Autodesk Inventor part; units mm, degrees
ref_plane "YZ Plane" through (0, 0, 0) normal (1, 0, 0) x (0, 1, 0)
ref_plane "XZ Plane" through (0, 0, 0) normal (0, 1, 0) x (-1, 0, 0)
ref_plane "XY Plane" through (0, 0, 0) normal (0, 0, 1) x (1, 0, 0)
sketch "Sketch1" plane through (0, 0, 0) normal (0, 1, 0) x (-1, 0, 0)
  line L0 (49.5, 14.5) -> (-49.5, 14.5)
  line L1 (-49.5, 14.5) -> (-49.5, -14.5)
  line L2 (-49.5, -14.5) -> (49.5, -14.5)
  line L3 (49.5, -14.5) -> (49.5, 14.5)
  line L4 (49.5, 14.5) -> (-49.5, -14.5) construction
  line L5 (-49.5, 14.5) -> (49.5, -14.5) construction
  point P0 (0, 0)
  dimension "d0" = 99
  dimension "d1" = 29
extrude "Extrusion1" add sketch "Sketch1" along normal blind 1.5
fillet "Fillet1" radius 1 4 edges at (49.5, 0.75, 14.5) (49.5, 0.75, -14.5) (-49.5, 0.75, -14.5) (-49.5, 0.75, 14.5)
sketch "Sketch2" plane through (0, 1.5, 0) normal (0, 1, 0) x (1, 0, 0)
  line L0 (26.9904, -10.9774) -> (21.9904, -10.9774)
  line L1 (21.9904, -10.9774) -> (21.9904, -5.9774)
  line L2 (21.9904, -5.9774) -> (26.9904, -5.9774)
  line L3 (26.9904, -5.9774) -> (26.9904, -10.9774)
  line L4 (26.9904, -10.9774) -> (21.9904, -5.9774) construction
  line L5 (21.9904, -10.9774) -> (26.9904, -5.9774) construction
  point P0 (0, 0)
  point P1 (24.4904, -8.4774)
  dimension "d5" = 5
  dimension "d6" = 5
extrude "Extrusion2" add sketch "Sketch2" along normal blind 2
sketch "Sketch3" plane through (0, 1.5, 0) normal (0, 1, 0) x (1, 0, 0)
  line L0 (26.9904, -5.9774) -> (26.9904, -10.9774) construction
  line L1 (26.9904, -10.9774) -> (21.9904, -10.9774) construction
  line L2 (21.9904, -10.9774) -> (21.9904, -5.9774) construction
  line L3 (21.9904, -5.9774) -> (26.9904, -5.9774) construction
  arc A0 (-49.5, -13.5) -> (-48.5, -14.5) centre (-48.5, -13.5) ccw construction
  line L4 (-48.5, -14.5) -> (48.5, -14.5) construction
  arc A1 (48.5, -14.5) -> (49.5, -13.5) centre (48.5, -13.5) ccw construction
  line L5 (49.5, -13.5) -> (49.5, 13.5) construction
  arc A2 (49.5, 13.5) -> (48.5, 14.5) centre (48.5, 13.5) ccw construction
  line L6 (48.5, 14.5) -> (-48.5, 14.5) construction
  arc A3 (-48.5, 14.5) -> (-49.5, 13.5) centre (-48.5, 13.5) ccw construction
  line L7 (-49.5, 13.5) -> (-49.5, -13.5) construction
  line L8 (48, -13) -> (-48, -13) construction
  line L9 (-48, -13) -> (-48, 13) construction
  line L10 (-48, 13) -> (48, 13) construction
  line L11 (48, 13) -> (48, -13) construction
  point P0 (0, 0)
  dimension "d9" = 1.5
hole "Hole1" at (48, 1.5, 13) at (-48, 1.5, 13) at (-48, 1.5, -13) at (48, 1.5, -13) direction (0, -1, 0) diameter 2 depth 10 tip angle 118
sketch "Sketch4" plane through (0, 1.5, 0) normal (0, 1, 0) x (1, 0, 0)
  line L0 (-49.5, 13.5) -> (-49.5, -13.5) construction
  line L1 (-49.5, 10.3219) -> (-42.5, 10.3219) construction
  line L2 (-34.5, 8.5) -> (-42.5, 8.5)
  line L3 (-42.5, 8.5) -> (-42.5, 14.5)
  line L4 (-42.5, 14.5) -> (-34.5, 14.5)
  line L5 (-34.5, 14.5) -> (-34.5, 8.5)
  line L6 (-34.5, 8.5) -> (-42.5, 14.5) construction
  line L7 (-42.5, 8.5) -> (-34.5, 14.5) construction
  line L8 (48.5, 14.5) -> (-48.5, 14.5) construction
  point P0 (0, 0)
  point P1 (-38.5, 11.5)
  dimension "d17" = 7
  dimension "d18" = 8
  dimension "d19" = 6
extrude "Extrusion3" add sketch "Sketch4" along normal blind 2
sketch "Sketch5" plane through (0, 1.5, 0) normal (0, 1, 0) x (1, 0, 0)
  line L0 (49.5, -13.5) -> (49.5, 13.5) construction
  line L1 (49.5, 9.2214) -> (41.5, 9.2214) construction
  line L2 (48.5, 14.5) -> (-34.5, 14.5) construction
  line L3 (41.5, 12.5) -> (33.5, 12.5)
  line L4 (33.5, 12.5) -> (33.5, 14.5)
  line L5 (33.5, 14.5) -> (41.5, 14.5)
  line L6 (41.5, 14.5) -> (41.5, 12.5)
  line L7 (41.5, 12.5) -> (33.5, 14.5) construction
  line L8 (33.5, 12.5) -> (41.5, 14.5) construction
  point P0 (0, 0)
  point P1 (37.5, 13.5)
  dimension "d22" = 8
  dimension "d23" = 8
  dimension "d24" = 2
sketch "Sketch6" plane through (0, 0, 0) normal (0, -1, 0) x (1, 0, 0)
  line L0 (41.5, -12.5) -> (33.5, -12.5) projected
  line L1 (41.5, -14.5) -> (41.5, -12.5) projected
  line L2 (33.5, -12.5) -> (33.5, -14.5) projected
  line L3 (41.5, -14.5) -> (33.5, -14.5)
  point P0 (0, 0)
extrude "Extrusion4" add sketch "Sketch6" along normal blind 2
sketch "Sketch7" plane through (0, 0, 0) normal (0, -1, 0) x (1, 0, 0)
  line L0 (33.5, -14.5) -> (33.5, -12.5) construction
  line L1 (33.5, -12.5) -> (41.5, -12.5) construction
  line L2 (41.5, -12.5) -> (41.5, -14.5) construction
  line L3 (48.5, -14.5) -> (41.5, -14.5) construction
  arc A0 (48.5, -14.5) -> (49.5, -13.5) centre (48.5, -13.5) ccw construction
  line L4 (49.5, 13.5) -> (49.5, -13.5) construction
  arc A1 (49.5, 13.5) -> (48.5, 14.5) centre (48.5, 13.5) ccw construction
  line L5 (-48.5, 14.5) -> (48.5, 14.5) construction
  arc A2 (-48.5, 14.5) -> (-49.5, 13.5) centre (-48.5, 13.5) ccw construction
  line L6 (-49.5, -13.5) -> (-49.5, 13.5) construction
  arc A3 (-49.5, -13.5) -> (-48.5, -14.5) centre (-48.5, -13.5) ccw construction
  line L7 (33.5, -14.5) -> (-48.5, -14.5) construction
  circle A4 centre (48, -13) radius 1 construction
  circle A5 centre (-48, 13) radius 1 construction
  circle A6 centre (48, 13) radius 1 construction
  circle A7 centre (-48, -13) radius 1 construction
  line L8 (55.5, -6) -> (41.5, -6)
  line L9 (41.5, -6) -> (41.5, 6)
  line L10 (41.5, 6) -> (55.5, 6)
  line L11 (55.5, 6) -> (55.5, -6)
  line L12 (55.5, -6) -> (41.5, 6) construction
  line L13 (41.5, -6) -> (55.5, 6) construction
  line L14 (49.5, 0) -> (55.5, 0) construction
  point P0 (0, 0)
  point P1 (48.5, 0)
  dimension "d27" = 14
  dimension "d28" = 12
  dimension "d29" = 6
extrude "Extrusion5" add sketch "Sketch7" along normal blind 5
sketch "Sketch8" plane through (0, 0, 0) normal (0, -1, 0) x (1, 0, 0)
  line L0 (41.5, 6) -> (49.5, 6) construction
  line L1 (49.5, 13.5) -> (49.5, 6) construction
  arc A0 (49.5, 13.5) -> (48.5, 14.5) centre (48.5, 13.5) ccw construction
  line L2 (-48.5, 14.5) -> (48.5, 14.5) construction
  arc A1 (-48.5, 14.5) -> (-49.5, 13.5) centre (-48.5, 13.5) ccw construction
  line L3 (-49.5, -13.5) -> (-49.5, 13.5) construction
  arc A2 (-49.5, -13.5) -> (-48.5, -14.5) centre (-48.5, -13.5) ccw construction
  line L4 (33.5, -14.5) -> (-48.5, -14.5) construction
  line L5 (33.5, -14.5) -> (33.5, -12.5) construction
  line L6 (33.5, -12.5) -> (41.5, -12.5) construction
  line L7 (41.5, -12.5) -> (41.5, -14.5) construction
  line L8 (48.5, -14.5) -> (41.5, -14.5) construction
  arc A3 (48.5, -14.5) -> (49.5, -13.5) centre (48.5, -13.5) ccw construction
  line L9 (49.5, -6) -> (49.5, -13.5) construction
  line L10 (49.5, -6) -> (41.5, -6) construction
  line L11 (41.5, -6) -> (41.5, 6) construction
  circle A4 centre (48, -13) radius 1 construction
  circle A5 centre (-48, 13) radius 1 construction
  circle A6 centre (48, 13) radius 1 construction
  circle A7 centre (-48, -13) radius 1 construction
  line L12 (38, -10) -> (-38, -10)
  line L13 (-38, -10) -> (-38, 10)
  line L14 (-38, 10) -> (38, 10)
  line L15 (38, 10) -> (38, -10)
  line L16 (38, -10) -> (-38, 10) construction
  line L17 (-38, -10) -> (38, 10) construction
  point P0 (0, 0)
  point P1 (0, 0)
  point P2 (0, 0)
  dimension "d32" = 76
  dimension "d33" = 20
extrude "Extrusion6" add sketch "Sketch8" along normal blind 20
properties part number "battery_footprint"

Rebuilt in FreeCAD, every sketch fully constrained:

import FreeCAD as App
import Part
import Sketcher

V = App.Vector
Q = App.Units.Quantity


def edges_at(feature, points):
    """Names of the edges that pass closest to the given points."""
    edges = feature.Shape.Edges
    near = lambda p: min(range(len(edges)), key=lambda i: edges[i].distToShape(Part.Vertex(*p))[0])
    return sorted({f"Edge{near(p) + 1}" for p in points})

doc = App.newDocument("Part")
body = doc.addObject("PartDesign::Body", "Body")

# Sketch on XZ plane
sketch1 = body.newObject("Sketcher::SketchObject", "Sketch")
sketch1.AttachmentSupport = (doc.getObject("XZ_Plane"), [""])
sketch1.MapMode = "FlatFace"
sketch1.addGeometry([
    Part.LineSegment(V(-49.5, -14.5, 0), V(-49.5, 14.5, 0)),
    Part.LineSegment(V(-49.5, 14.5, 0), V(49.5, 14.5, 0)),
    Part.LineSegment(V(49.5, 14.5, 0), V(49.5, -14.5, 0)),
    Part.LineSegment(V(49.5, -14.5, 0), V(-49.5, -14.5, 0)),
], False)
sketch1.addConstraint([
    Sketcher.Constraint("Coincident", 0, 2, 1, 1),
    Sketcher.Constraint("Coincident", 1, 2, 2, 1),
    Sketcher.Constraint("Coincident", 2, 2, 3, 1),
    Sketcher.Constraint("Coincident", 3, 2, 0, 1),
    Sketcher.Constraint("Vertical", 0),
    Sketcher.Constraint("Horizontal", 1),
    Sketcher.Constraint("Vertical", 2),
    Sketcher.Constraint("Horizontal", 3),
    Sketcher.Constraint("Symmetric", 0, 2, 2, 2, -1, 1),
    Sketcher.Constraint("DistanceX", 1, 1, 1, 2, Q("99 mm")),
    Sketcher.Constraint("DistanceY", 0, 1, 0, 2, Q("29 mm")),
])
pad1 = body.newObject("PartDesign::Pad", "Pad")
pad1.Profile = sketch1
pad1.Length = 1.5
pad1.Reversed = True
doc.recompute()

fillet = body.newObject("PartDesign::Fillet", "Fillet")
fillet.Base = (pad1, edges_at(pad1, [
    (49.5, 0.75, 14.5),
    (49.5, 0.75, -14.5),
    (-49.5, 0.75, -14.5),
    (-49.5, 0.75, 14.5),
]))
fillet.Radius = 1

# Sketch on XZ plane
sketch2 = body.newObject("Sketcher::SketchObject", "Sketch001")
sketch2.AttachmentSupport = (doc.getObject("XZ_Plane"), [""])
sketch2.MapMode = "FlatFace"
sketch2.AttachmentOffset = App.Placement(V(0, 0, -1.5), App.Rotation())
sketch2.addGeometry([
    Part.LineSegment(V(21.9904, 10.9774, 0), V(26.9904, 10.9774, 0)),
    Part.LineSegment(V(26.9904, 10.9774, 0), V(26.9904, 5.9774, 0)),
    Part.LineSegment(V(26.9904, 5.9774, 0), V(21.9904, 5.9774, 0)),
    Part.LineSegment(V(21.9904, 5.9774, 0), V(21.9904, 10.9774, 0)),
], False)
sketch2.addConstraint([
    Sketcher.Constraint("Coincident", 0, 2, 1, 1),
    Sketcher.Constraint("Coincident", 1, 2, 2, 1),
    Sketcher.Constraint("Coincident", 2, 2, 3, 1),
    Sketcher.Constraint("Coincident", 3, 2, 0, 1),
    Sketcher.Constraint("Horizontal", 0),
    Sketcher.Constraint("Vertical", 1),
    Sketcher.Constraint("Horizontal", 2),
    Sketcher.Constraint("Vertical", 3),
    Sketcher.Constraint("Equal", 2, 1),
    Sketcher.Constraint("DistanceX", 0, 1, 0, 2, Q("5 mm")),
    Sketcher.Constraint("DistanceX", -1, 1, 0, 2, Q("26.9904 mm")),
    Sketcher.Constraint("DistanceY", -1, 1, 0, 2, Q("10.9774 mm")),
])
pad2 = body.newObject("PartDesign::Pad", "Pad001")
pad2.Profile = sketch2
pad2.Length = 2
pad2.Reversed = True

# Sketch on XZ plane
sketch3 = body.newObject("Sketcher::SketchObject", "Sketch002")
sketch3.AttachmentSupport = (doc.getObject("XZ_Plane"), [""])
sketch3.MapMode = "FlatFace"
sketch3.AttachmentOffset = App.Placement(V(0, 0, -1.5), App.Rotation())
sketch3.addGeometry([
    Part.Circle(V(48, 13, 0), V(0, 0, 1), 1),
    Part.Circle(V(-48, 13, 0), V(0, 0, 1), 1),
    Part.Circle(V(-48, -13, 0), V(0, 0, 1), 1),
    Part.Circle(V(48, -13, 0), V(0, 0, 1), 1),
], False)
sketch3.addConstraint([
    Sketcher.Constraint("Equal", 0, 1),
    Sketcher.Constraint("Equal", 1, 2),
    Sketcher.Constraint("Equal", 2, 3),
    Sketcher.Constraint("Symmetric", 0, 3, 2, 3, -1, 1),
    Sketcher.Constraint("Symmetric", 1, 3, 3, 3, -1, 1),
    Sketcher.Constraint("Symmetric", 0, 3, 1, 3, -2),
    Sketcher.Constraint("Diameter", 0, Q("2 mm")),
    Sketcher.Constraint("DistanceX", -1, 1, 0, 3, Q("48 mm")),
    Sketcher.Constraint("DistanceY", -1, 1, 0, 3, Q("13 mm")),
])
doc.recompute()
hole = body.newObject("PartDesign::Hole", "Hole")
hole.Profile = sketch3
hole.ThreadType = "None"
hole.Diameter = 2
hole.DepthType = "Dimension"
hole.Depth = 10
hole.DrillPoint = "Angled"
hole.DrillPointAngle = 118
hole.Reversed = True

# Sketch on XZ plane
sketch4 = body.newObject("Sketcher::SketchObject", "Sketch003")
sketch4.AttachmentSupport = (doc.getObject("XZ_Plane"), [""])
sketch4.MapMode = "FlatFace"
sketch4.AttachmentOffset = App.Placement(V(0, 0, -1.5), App.Rotation())
sketch4.addGeometry([
    Part.LineSegment(V(-42.5, -8.5, 0), V(-34.5, -8.5, 0)),
    Part.LineSegment(V(-34.5, -8.5, 0), V(-34.5, -14.5, 0)),
    Part.LineSegment(V(-34.5, -14.5, 0), V(-42.5, -14.5, 0)),
    Part.LineSegment(V(-42.5, -14.5, 0), V(-42.5, -8.5, 0)),
], False)
sketch4.addConstraint([
    Sketcher.Constraint("Coincident", 0, 2, 1, 1),
    Sketcher.Constraint("Coincident", 1, 2, 2, 1),
    Sketcher.Constraint("Coincident", 2, 2, 3, 1),
    Sketcher.Constraint("Coincident", 3, 2, 0, 1),
    Sketcher.Constraint("Horizontal", 0),
    Sketcher.Constraint("Vertical", 1),
    Sketcher.Constraint("Horizontal", 2),
    Sketcher.Constraint("Vertical", 3),
    Sketcher.Constraint("DistanceX", 0, 1, 0, 2, Q("8 mm")),
    Sketcher.Constraint("DistanceY", 1, 2, 1, 1, Q("6 mm")),
    Sketcher.Constraint("DistanceX", 0, 2, -1, 1, Q("34.5 mm")),
    Sketcher.Constraint("DistanceY", 0, 2, -1, 1, Q("8.5 mm")),
])
pad3 = body.newObject("PartDesign::Pad", "Pad002")
pad3.Profile = sketch4
pad3.Length = 2
pad3.Reversed = True

# Sketch on XZ plane
sketch5 = body.newObject("Sketcher::SketchObject", "Sketch004")
sketch5.AttachmentSupport = (doc.getObject("XZ_Plane"), [""])
sketch5.MapMode = "FlatFace"
sketch5.addGeometry([
    Part.LineSegment(V(41.5, -14.5, 0), V(41.5, -12.5, 0)),
    Part.LineSegment(V(41.5, -12.5, 0), V(33.5, -12.5, 0)),
    Part.LineSegment(V(33.5, -12.5, 0), V(33.5, -14.5, 0)),
    Part.LineSegment(V(33.5, -14.5, 0), V(41.5, -14.5, 0)),
], False)
sketch5.addConstraint([
    Sketcher.Constraint("Coincident", 0, 2, 1, 1),
    Sketcher.Constraint("Coincident", 1, 2, 2, 1),
    Sketcher.Constraint("Coincident", 2, 2, 3, 1),
    Sketcher.Constraint("Coincident", 3, 2, 0, 1),
    Sketcher.Constraint("Vertical", 0),
    Sketcher.Constraint("Horizontal", 1),
    Sketcher.Constraint("Vertical", 2),
    Sketcher.Constraint("Horizontal", 3),
    Sketcher.Constraint("DistanceX", 1, 2, 1, 1, Q("8 mm")),
    Sketcher.Constraint("DistanceY", 0, 1, 0, 2, Q("2 mm")),
    Sketcher.Constraint("DistanceX", -1, 1, 0, 2, Q("41.5 mm")),
    Sketcher.Constraint("DistanceY", 0, 2, -1, 1, Q("12.5 mm")),
])
pad4 = body.newObject("PartDesign::Pad", "Pad003")
pad4.Profile = sketch5
pad4.Length = 2

# Sketch on XZ plane
sketch6 = body.newObject("Sketcher::SketchObject", "Sketch005")
sketch6.AttachmentSupport = (doc.getObject("XZ_Plane"), [""])
sketch6.MapMode = "FlatFace"
sketch6.addGeometry([
    Part.LineSegment(V(41.5, -6, 0), V(55.5, -6, 0)),
    Part.LineSegment(V(55.5, -6, 0), V(55.5, 6, 0)),
    Part.LineSegment(V(55.5, 6, 0), V(41.5, 6, 0)),
    Part.LineSegment(V(41.5, 6, 0), V(41.5, -6, 0)),
], False)
sketch6.addConstraint([
    Sketcher.Constraint("Coincident", 0, 2, 1, 1),
    Sketcher.Constraint("Coincident", 1, 2, 2, 1),
    Sketcher.Constraint("Coincident", 2, 2, 3, 1),
    Sketcher.Constraint("Coincident", 3, 2, 0, 1),
    Sketcher.Constraint("Horizontal", 0),
    Sketcher.Constraint("Vertical", 1),
    Sketcher.Constraint("Horizontal", 2),
    Sketcher.Constraint("Vertical", 3),
    Sketcher.Constraint("DistanceX", 0, 1, 0, 2, Q("14 mm")),
    Sketcher.Constraint("DistanceY", 1, 1, 1, 2, Q("12 mm")),
    Sketcher.Constraint("DistanceY", 0, 2, -1, 1, Q("6 mm")),
    Sketcher.Constraint("DistanceX", -1, 1, 0, 2, Q("55.5 mm")),
])
pad5 = body.newObject("PartDesign::Pad", "Pad004")
pad5.Profile = sketch6
pad5.Length = 5

# Sketch on XZ plane
sketch7 = body.newObject("Sketcher::SketchObject", "Sketch006")
sketch7.AttachmentSupport = (doc.getObject("XZ_Plane"), [""])
sketch7.MapMode = "FlatFace"
sketch7.addGeometry([
    Part.LineSegment(V(-38, -10, 0), V(38, -10, 0)),
    Part.LineSegment(V(38, -10, 0), V(38, 10, 0)),
    Part.LineSegment(V(38, 10, 0), V(-38, 10, 0)),
    Part.LineSegment(V(-38, 10, 0), V(-38, -10, 0)),
], False)
sketch7.addConstraint([
    Sketcher.Constraint("Coincident", 0, 2, 1, 1),
    Sketcher.Constraint("Coincident", 1, 2, 2, 1),
    Sketcher.Constraint("Coincident", 2, 2, 3, 1),
    Sketcher.Constraint("Coincident", 3, 2, 0, 1),
    Sketcher.Constraint("Horizontal", 0),
    Sketcher.Constraint("Vertical", 1),
    Sketcher.Constraint("Horizontal", 2),
    Sketcher.Constraint("Vertical", 3),
    Sketcher.Constraint("Symmetric", 0, 2, 2, 2, -1, 1),
    Sketcher.Constraint("DistanceX", 0, 1, 0, 2, Q("76 mm")),
    Sketcher.Constraint("DistanceY", 1, 1, 1, 2, Q("20 mm")),
])
pad6 = body.newObject("PartDesign::Pad", "Pad005")
pad6.Profile = sketch7
pad6.Length = 20

doc.recompute()
